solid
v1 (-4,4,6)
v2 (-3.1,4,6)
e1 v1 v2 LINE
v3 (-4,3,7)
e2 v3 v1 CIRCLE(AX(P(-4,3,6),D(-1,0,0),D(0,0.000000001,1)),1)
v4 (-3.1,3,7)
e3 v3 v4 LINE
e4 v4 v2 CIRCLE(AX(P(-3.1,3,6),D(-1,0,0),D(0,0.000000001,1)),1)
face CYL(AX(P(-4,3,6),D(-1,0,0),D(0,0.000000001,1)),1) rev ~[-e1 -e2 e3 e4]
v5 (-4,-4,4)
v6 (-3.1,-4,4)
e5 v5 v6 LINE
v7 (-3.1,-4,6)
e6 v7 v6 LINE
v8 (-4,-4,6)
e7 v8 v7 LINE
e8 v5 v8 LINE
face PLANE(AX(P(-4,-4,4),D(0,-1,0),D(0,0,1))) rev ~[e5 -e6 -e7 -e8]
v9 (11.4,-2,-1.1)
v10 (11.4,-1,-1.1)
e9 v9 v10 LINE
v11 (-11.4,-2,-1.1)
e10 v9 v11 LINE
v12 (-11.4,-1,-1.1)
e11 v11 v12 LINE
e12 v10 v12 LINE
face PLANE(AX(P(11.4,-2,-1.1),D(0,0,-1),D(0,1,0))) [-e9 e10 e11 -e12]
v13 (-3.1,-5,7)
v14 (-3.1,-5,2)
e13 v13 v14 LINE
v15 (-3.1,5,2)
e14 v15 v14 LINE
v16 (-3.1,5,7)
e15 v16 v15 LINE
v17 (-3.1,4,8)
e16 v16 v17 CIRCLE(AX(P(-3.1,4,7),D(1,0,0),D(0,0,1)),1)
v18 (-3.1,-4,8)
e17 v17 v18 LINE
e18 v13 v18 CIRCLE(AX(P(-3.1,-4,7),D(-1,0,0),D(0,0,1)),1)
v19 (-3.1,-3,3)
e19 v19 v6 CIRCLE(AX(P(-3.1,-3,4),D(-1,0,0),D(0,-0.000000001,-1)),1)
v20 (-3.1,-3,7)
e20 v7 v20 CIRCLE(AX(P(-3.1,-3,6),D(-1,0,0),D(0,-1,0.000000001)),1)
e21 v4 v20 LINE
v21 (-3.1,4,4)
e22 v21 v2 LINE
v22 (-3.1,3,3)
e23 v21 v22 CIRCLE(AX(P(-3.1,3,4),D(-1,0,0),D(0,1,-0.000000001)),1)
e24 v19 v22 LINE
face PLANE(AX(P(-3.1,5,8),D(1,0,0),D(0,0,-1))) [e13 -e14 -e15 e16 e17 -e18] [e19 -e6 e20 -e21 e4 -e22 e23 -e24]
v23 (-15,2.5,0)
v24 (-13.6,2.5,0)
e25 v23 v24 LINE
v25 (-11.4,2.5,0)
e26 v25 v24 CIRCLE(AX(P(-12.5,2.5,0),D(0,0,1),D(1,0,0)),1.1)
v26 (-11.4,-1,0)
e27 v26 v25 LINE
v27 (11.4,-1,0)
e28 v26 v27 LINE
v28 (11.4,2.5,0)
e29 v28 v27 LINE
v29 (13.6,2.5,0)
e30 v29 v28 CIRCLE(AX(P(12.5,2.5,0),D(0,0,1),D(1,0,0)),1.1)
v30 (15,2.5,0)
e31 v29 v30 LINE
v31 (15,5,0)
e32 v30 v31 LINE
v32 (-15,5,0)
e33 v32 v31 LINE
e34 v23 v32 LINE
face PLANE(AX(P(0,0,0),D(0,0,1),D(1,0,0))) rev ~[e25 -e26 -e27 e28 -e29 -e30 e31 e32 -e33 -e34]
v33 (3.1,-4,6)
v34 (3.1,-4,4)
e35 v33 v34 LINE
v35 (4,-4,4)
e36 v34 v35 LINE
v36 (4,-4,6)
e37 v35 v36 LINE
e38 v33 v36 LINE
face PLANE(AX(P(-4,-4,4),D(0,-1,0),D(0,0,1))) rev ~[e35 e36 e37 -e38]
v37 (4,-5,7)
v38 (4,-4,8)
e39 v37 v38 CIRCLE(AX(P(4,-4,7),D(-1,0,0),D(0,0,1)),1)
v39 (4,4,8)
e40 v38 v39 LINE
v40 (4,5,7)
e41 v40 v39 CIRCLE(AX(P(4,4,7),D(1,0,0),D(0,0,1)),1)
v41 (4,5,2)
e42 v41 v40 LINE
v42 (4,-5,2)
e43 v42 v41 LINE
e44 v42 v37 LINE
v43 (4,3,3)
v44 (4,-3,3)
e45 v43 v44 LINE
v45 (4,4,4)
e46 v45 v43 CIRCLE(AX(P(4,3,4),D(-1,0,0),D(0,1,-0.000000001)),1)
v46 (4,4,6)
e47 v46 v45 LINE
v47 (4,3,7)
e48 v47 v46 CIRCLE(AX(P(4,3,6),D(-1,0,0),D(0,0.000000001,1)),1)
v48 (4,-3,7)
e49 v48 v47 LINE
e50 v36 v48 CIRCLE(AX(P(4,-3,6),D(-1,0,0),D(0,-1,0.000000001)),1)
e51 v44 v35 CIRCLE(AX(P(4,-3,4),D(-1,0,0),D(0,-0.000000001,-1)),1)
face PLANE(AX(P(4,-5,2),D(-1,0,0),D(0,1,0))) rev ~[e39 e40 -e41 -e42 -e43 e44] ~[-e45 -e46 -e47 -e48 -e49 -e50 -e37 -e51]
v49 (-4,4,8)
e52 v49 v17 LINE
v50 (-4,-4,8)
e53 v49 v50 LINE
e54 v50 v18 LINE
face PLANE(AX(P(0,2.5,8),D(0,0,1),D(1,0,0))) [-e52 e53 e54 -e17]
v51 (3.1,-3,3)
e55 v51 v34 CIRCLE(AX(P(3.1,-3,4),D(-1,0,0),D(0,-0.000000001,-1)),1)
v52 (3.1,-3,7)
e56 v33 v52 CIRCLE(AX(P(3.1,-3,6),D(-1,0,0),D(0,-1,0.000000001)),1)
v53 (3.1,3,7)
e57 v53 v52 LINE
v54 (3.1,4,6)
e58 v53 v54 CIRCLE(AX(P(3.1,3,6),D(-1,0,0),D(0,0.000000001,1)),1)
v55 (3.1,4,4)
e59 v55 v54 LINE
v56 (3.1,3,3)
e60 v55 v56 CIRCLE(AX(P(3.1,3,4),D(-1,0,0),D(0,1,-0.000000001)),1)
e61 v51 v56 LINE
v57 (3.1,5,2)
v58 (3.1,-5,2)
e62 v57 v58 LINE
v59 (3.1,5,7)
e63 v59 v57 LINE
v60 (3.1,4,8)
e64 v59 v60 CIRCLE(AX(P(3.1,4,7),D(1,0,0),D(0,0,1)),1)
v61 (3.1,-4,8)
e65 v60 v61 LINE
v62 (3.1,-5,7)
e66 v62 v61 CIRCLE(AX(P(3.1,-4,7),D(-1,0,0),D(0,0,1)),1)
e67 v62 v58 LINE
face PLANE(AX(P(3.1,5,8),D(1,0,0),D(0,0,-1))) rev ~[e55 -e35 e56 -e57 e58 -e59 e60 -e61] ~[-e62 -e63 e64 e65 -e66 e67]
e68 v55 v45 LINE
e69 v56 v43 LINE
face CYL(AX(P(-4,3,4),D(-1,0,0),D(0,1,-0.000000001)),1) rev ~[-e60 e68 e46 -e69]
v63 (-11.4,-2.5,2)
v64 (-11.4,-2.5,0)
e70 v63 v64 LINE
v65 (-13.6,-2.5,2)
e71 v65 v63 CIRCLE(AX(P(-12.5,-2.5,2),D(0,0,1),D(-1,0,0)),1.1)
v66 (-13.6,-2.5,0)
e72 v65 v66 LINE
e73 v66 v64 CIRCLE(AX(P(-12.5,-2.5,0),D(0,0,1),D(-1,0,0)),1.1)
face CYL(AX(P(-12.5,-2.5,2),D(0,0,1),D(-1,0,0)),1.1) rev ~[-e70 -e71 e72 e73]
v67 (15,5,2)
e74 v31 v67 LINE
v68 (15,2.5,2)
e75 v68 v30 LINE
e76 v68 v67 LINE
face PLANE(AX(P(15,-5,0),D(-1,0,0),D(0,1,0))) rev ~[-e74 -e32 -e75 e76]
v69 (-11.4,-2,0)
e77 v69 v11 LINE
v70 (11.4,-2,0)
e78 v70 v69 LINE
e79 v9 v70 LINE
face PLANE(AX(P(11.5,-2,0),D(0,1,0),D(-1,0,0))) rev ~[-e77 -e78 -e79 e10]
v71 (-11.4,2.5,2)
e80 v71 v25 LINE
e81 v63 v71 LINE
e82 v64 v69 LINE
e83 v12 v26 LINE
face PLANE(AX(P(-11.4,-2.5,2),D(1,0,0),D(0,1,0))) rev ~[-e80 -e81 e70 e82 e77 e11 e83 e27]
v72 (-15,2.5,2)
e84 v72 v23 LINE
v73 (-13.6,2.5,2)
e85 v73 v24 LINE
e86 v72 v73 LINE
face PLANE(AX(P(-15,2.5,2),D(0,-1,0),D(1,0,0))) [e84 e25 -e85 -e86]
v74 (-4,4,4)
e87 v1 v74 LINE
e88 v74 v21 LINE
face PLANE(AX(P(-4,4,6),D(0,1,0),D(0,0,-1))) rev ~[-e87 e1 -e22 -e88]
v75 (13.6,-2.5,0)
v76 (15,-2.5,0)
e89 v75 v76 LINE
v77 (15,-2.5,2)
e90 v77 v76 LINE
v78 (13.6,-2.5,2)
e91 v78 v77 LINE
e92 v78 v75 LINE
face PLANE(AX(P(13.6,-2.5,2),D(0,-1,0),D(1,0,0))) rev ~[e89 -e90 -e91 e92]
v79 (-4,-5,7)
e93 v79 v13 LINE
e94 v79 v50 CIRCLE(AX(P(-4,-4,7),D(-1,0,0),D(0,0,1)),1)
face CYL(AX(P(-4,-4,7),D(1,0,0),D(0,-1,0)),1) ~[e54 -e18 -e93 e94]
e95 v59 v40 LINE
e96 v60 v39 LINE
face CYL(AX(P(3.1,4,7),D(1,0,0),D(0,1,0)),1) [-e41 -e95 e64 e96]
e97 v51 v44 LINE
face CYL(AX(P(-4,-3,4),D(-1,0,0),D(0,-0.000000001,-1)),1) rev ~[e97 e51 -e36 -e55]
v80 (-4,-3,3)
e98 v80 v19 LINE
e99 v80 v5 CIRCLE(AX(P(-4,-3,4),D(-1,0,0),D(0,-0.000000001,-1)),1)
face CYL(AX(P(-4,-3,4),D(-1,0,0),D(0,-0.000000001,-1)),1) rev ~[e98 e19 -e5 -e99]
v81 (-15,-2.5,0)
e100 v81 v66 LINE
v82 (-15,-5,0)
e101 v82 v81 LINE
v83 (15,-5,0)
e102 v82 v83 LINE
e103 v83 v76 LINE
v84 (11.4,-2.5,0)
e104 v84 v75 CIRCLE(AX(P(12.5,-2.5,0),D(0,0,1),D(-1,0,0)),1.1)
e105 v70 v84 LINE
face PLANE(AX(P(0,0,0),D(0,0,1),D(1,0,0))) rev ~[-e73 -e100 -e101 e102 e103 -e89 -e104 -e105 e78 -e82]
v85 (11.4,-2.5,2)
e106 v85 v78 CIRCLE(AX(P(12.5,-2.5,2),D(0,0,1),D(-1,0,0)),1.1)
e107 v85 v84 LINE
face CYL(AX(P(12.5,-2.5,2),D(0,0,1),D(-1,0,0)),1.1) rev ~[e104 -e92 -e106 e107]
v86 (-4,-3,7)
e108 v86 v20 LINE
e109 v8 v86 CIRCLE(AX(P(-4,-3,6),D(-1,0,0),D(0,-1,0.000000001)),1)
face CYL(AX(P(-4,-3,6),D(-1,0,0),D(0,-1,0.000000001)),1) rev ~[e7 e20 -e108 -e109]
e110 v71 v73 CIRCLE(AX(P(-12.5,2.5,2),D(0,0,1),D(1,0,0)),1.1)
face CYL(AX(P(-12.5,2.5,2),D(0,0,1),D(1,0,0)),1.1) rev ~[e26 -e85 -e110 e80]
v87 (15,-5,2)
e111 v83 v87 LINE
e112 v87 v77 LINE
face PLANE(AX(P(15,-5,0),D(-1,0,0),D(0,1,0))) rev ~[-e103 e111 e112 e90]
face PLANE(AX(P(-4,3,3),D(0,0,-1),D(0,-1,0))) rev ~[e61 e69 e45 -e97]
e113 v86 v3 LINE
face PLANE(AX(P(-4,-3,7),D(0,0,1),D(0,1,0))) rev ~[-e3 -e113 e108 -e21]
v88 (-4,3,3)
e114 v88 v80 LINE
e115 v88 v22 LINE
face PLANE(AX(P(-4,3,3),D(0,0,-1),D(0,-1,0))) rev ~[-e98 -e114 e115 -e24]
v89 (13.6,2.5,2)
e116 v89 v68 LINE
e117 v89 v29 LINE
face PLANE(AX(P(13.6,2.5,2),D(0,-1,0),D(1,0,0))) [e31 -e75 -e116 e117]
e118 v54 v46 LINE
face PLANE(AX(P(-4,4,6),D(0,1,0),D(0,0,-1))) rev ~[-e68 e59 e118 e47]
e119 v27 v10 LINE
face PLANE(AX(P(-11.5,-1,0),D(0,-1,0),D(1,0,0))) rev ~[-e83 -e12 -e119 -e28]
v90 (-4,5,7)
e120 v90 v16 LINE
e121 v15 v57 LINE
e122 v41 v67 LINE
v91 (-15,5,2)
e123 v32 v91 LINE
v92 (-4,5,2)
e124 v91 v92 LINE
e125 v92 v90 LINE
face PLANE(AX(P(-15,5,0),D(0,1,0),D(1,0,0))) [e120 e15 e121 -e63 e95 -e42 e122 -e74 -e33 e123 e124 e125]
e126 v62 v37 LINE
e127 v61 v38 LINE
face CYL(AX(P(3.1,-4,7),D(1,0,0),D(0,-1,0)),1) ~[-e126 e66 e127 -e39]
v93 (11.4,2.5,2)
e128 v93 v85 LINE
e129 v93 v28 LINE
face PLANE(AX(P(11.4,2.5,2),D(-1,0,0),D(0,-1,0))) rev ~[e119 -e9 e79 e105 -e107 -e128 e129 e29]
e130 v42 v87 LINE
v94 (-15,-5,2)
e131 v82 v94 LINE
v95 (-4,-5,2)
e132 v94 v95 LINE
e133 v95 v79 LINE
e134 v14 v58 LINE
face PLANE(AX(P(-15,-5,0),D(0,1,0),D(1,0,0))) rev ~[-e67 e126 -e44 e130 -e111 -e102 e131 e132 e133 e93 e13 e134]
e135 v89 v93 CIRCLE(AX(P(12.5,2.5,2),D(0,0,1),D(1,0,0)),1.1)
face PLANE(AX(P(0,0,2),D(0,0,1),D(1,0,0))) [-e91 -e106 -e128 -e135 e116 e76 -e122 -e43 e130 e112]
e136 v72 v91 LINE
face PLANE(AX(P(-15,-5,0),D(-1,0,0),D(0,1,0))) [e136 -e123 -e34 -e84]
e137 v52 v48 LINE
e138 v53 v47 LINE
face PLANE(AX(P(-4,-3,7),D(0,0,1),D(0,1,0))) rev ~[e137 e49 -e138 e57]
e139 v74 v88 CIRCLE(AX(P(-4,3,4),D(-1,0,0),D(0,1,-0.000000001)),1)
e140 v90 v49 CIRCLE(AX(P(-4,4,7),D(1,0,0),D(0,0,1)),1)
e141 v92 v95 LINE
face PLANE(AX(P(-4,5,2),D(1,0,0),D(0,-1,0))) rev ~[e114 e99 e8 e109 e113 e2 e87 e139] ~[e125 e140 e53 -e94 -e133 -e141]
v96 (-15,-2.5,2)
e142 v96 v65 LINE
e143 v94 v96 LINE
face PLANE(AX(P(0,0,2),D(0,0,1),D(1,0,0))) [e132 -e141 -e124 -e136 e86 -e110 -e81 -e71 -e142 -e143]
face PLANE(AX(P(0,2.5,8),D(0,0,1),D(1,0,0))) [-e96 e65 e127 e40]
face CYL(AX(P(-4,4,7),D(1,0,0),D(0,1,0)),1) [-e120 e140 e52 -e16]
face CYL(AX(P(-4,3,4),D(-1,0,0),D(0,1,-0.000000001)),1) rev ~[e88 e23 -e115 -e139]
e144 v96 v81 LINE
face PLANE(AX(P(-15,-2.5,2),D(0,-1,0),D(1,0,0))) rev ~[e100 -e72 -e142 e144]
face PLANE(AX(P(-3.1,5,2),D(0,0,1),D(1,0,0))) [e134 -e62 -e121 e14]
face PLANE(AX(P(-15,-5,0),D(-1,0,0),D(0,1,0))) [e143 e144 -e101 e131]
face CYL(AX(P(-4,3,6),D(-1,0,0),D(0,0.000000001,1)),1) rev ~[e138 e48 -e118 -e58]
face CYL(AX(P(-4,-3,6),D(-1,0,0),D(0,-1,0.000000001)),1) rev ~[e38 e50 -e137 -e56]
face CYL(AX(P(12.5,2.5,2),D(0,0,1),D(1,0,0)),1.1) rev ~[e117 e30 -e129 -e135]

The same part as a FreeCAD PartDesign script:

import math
import FreeCAD as App
import Part
import Sketcher

V = App.Vector
Q = App.Units.Quantity


def edges_at(feature, points):
    """Names of the edges that pass closest to the given points."""
    edges = feature.Shape.Edges
    near = lambda p: min(range(len(edges)), key=lambda i: edges[i].distToShape(Part.Vertex(*p))[0])
    return sorted({f"Edge{near(p) + 1}" for p in points})


def add_polygon(sketch, points):
    """Adds a closed chain of lines whose ends are joined by coincident constraints."""
    first, n = sketch.GeometryCount, len(points)
    for a, b in zip(points, points[1:] + points[:1]):
        sketch.addGeometry(Part.LineSegment(App.Vector(*a, 0), App.Vector(*b, 0)), False)
    for i in range(n):
        sketch.addConstraint(Sketcher.Constraint("Coincident", first + i, 2, first + (i + 1) % n, 1))

doc = App.newDocument("Part")
body = doc.addObject("PartDesign::Body", "Body")

sketch1 = body.newObject("Sketcher::SketchObject", "Sketch")
sketch1.AttachmentSupport = (doc.getObject("XY_Plane"), [""])
sketch1.MapMode = "FlatFace"
add_polygon(sketch1, [(-15, 5), (-15, -5), (15, -5), (15, 5)])
sketch1.addConstraint([
    Sketcher.Constraint("Vertical", 0),
    Sketcher.Constraint("Horizontal", 1),
    Sketcher.Constraint("Vertical", 2),
    Sketcher.Constraint("Horizontal", 3),
    Sketcher.Constraint("Symmetric", 0, 2, 2, 2, -1, 1),
    Sketcher.Constraint("DistanceX", 1, 1, 1, 2, Q("30 mm")),
    Sketcher.Constraint("DistanceY", 0, 2, 0, 1, Q("10 mm")),
])
pad1 = body.newObject("PartDesign::Pad", "Pad")
pad1.Profile = sketch1
pad1.Length = 2

sketch2 = body.newObject("Sketcher::SketchObject", "Sketch001")
sketch2.AttachmentSupport = (doc.getObject("XY_Plane"), [""])
sketch2.MapMode = "FlatFace"
sketch2.AttachmentOffset = App.Placement(V(0, 0, 2), App.Rotation())
sketch2.addGeometry([
    Part.LineSegment(V(-13.5, 2.5, 0), V(-13.5, -2.5, 0)),
    Part.ArcOfCircle(Part.Circle(V(-12.5, -2.5, 0), V(0, 0, 1), 1), math.radians(180), math.radians(360)),
    Part.LineSegment(V(-11.5, -2.5, 0), V(-11.5, 2.5, 0)),
    Part.ArcOfCircle(Part.Circle(V(-12.5, 2.5, 0), V(0, 0, 1), 1), math.radians(0), math.radians(180)),
    Part.LineSegment(V(11.5, 2.5, 0), V(11.5, -2.5, 0)),
    Part.ArcOfCircle(Part.Circle(V(12.5, -2.5, 0), V(0, 0, 1), 1), math.radians(180), math.radians(360)),
    Part.LineSegment(V(13.5, -2.5, 0), V(13.5, 2.5, 0)),
    Part.ArcOfCircle(Part.Circle(V(12.5, 2.5, 0), V(0, 0, 1), 1), math.radians(0), math.radians(180)),
], False)
sketch2.addConstraint([
    Sketcher.Constraint("Tangent", 0, 2, 1, 1),
    Sketcher.Constraint("Tangent", 1, 2, 2, 1),
    Sketcher.Constraint("Tangent", 2, 2, 3, 1),
    Sketcher.Constraint("Tangent", 3, 2, 0, 1),
    Sketcher.Constraint("Tangent", 4, 2, 5, 1),
    Sketcher.Constraint("Tangent", 5, 2, 6, 1),
    Sketcher.Constraint("Tangent", 6, 2, 7, 1),
    Sketcher.Constraint("Tangent", 7, 2, 4, 1),
    Sketcher.Constraint("Vertical", 0),
    Sketcher.Constraint("Vertical", 2),
    Sketcher.Constraint("Vertical", 4),
    Sketcher.Constraint("Vertical", 6),
    Sketcher.Constraint("Equal", 3, 5),
    Sketcher.Constraint("Symmetric", 3, 3, 5, 3, -1, 1),
    Sketcher.Constraint("Horizontal", 1, 3, 5, 3),
    Sketcher.Constraint("Horizontal", 3, 3, 7, 3),
    Sketcher.Constraint("Radius", 1, Q("1 mm")),
    Sketcher.Constraint("DistanceY", 0, 2, 0, 1, Q("5 mm")),
    Sketcher.Constraint("DistanceX", 1, 3, 5, 3, Q("25 mm")),
])
pocket1 = body.newObject("PartDesign::Pocket", "Pocket")
pocket1.Profile = sketch2
pocket1.Length = 11

sketch3 = body.newObject("Sketcher::SketchObject", "Sketch002")
sketch3.AttachmentSupport = (doc.getObject("XY_Plane"), [""])
sketch3.MapMode = "FlatFace"
add_polygon(sketch3, [(-11.5, -2), (-11.5, -1), (11.5, -1), (11.5, -2)])
sketch3.addConstraint([
    Sketcher.Constraint("Vertical", 0),
    Sketcher.Constraint("Horizontal", 1),
    Sketcher.Constraint("Vertical", 2),
    Sketcher.Constraint("Horizontal", 3),
    Sketcher.Constraint("DistanceX", 1, 1, 1, 2, Q("23 mm")),
    Sketcher.Constraint("DistanceY", 0, 1, 0, 2, Q("1 mm")),
    Sketcher.Constraint("DistanceY", 0, 2, -1, 1, Q("1 mm")),
    Sketcher.Constraint("DistanceX", 0, 2, -1, 1, Q("11.5 mm")),
])
pad2 = body.newObject("PartDesign::Pad", "Pad001")
pad2.Profile = sketch3
pad2.Length = 1.5
pad2.Reversed = True

sketch4 = body.newObject("Sketcher::SketchObject", "Sketch003")
sketch4.AttachmentSupport = (doc.getObject("XY_Plane"), [""])
sketch4.MapMode = "FlatFace"
sketch4.AttachmentOffset = App.Placement(V(0, 0, 2), App.Rotation())
sketch4.addGeometry([
    Part.LineSegment(V(-13.6, 2.5, 0), V(-13.6, -2.5, 0)),
    Part.ArcOfCircle(Part.Circle(V(-12.5, -2.5, 0), V(0, 0, 1), 1.1), math.radians(180), math.radians(360)),
    Part.LineSegment(V(-11.4, -2.5, 0), V(-11.4, 2.5, 0)),
    Part.ArcOfCircle(Part.Circle(V(-12.5, 2.5, 0), V(0, 0, 1), 1.1), math.radians(0), math.radians(180)),
    Part.LineSegment(V(11.4, 2.5, 0), V(11.4, -2.5, 0)),
    Part.ArcOfCircle(Part.Circle(V(12.5, -2.5, 0), V(0, 0, 1), 1.1), math.radians(180), math.radians(360)),
    Part.LineSegment(V(13.6, -2.5, 0), V(13.6, 2.5, 0)),
    Part.ArcOfCircle(Part.Circle(V(12.5, 2.5, 0), V(0, 0, 1), 1.1), math.radians(0), math.radians(180)),
], False)
sketch4.addConstraint([
    Sketcher.Constraint("Tangent", 0, 2, 1, 1),
    Sketcher.Constraint("Tangent", 1, 2, 2, 1),
    Sketcher.Constraint("Tangent", 2, 2, 3, 1),
    Sketcher.Constraint("Tangent", 3, 2, 0, 1),
    Sketcher.Constraint("Tangent", 4, 2, 5, 1),
    Sketcher.Constraint("Tangent", 5, 2, 6, 1),
    Sketcher.Constraint("Tangent", 6, 2, 7, 1),
    Sketcher.Constraint("Tangent", 7, 2, 4, 1),
    Sketcher.Constraint("Vertical", 0),
    Sketcher.Constraint("Vertical", 2),
    Sketcher.Constraint("Vertical", 4),
    Sketcher.Constraint("Vertical", 6),
    Sketcher.Constraint("Equal", 3, 5),
    Sketcher.Constraint("Symmetric", 3, 3, 5, 3, -1, 1),
    Sketcher.Constraint("Horizontal", 1, 3, 5, 3),
    Sketcher.Constraint("Horizontal", 3, 3, 7, 3),
    Sketcher.Constraint("Radius", 1, Q("1.1 mm")),
    Sketcher.Constraint("DistanceY", 0, 2, 0, 1, Q("5 mm")),
    Sketcher.Constraint("DistanceX", 1, 3, 5, 3, Q("25 mm")),
])
pocket2 = body.newObject("PartDesign::Pocket", "Pocket001")
pocket2.Profile = sketch4
pocket2.Length = 11.5

sketch5 = body.newObject("Sketcher::SketchObject", "Sketch004")
sketch5.AttachmentSupport = (doc.getObject("XY_Plane"), [""])
sketch5.MapMode = "FlatFace"
sketch5.AttachmentOffset = App.Placement(V(0, 0, 2), App.Rotation())
add_polygon(sketch5, [(-15, 2.5), (-15, -2.5), (-13.6, -2.5), (-13.6, 2.5)])
add_polygon(sketch5, [(13.6, 2.5), (13.6, -2.5), (15, -2.5), (15, 2.5)])
sketch5.addConstraint([
    Sketcher.Constraint("Vertical", 0),
    Sketcher.Constraint("Horizontal", 1),
    Sketcher.Constraint("Vertical", 2),
    Sketcher.Constraint("Horizontal", 3),
    Sketcher.Constraint("Vertical", 4),
    Sketcher.Constraint("Horizontal", 5),
    Sketcher.Constraint("Vertical", 6),
    Sketcher.Constraint("Horizontal", 7),
    Sketcher.Constraint("Symmetric", 2, 2, 4, 2, -1, 1),
    Sketcher.Constraint("Symmetric", 0, 2, 6, 2, -1, 1),
    Sketcher.Constraint("Horizontal", 1, 2, 4, 2),
    Sketcher.Constraint("DistanceY", 0, 2, 0, 1, Q("5 mm")),
    Sketcher.Constraint("DistanceX", 1, 1, 1, 2, Q("1.4 mm")),
    Sketcher.Constraint("DistanceX", 0, 2, -1, 1, Q("15 mm")),
])
pocket3 = body.newObject("PartDesign::Pocket", "Pocket002")
pocket3.Profile = sketch5
pocket3.Length = 10

sketch6 = body.newObject("Sketcher::SketchObject", "Sketch005")
sketch6.AttachmentSupport = (doc.getObject("XY_Plane"), [""])
sketch6.MapMode = "FlatFace"
sketch6.AttachmentOffset = App.Placement(V(0, 0, 2), App.Rotation())
add_polygon(sketch6, [(-4, 5), (-4, -5), (4, -5), (4, 5)])
sketch6.addConstraint([
    Sketcher.Constraint("Vertical", 0),
    Sketcher.Constraint("Horizontal", 1),
    Sketcher.Constraint("Vertical", 2),
    Sketcher.Constraint("Horizontal", 3),
    Sketcher.Constraint("Symmetric", 0, 2, 2, 2, -1, 1),
    Sketcher.Constraint("DistanceX", 1, 1, 1, 2, Q("8 mm")),
    Sketcher.Constraint("DistanceY", 0, 2, 0, 1, Q("10 mm")),
])
pad3 = body.newObject("PartDesign::Pad", "Pad002")
pad3.Profile = sketch6
pad3.Length = 6

sketch7 = body.newObject("Sketcher::SketchObject", "Sketch006")
sketch7.AttachmentSupport = (doc.getObject("XZ_Plane"), [""])
sketch7.MapMode = "FlatFace"
sketch7.AttachmentOffset = App.Placement(V(0, 0, -5), App.Rotation())
add_polygon(sketch7, [(-3, 2), (-3, 8), (3, 8), (3, 2)])
sketch7.addConstraint([
    Sketcher.Constraint("Vertical", 0),
    Sketcher.Constraint("Horizontal", 1),
    Sketcher.Constraint("Vertical", 2),
    Sketcher.Constraint("Horizontal", 3),
    Sketcher.Constraint("DistanceY", 0, 1, 0, 2, Q("6 mm")),
    Sketcher.Constraint("DistanceX", 1, 1, 1, 2, Q("6.2 mm")),
    Sketcher.Constraint("DistanceY", -1, 1, 0, 2, Q("8 mm")),
    Sketcher.Constraint("DistanceX", 0, 2, -1, 1, Q("3.1 mm")),
])
pocket4 = body.newObject("PartDesign::Pocket", "Pocket003")
pocket4.Profile = sketch7
pocket4.Length = 11
pocket4.Reversed = True

sketch8 = body.newObject("Sketcher::SketchObject", "Sketch007")
sketch8.AttachmentSupport = (doc.getObject("YZ_Plane"), [""])
sketch8.MapMode = "FlatFace"
sketch8.AttachmentOffset = App.Placement(V(0, 0, -4), App.Rotation())
sketch8.addGeometry([
    Part.ArcOfCircle(Part.Circle(V(3, 4, 0), V(0, 0, 1), 1), math.radians(-90), math.radians(0)),
    Part.LineSegment(V(3, 3, 0), V(-3, 3, 0)),
    Part.ArcOfCircle(Part.Circle(V(-3, 4, 0), V(0, 0, 1), 1), math.radians(-180), math.radians(-90)),
    Part.LineSegment(V(-4, 4, 0), V(-4, 6, 0)),
    Part.ArcOfCircle(Part.Circle(V(-3, 6, 0), V(0, 0, 1), 1), math.radians(90), math.radians(180)),
    Part.LineSegment(V(-3, 7, 0), V(3, 7, 0)),
    Part.ArcOfCircle(Part.Circle(V(3, 6, 0), V(0, 0, 1), 1), math.radians(0), math.radians(90)),
    Part.LineSegment(V(4, 6, 0), V(4, 4, 0)),
], False)
sketch8.addConstraint([
    Sketcher.Constraint("Tangent", 0, 1, 1, 1),
    Sketcher.Constraint("Tangent", 1, 2, 2, 2),
    Sketcher.Constraint("Tangent", 2, 1, 3, 1),
    Sketcher.Constraint("Tangent", 3, 2, 4, 2),
    Sketcher.Constraint("Tangent", 4, 1, 5, 1),
    Sketcher.Constraint("Tangent", 5, 2, 6, 2),
    Sketcher.Constraint("Tangent", 6, 1, 7, 1),
    Sketcher.Constraint("Tangent", 7, 2, 0, 2),
    Sketcher.Constraint("Horizontal", 1),
    Sketcher.Constraint("Vertical", 3),
    Sketcher.Constraint("Horizontal", 5),
    Sketcher.Constraint("Vertical", 7),
    Sketcher.Constraint("Equal", 0, 2),
    Sketcher.Constraint("Equal", 2, 4),
    Sketcher.Constraint("Equal", 4, 6),
    Sketcher.Constraint("Radius", 0, Q("1 mm")),
    Sketcher.Constraint("DistanceX", 1, 2, 1, 1, Q("6 mm")),
    Sketcher.Constraint("DistanceY", 3, 1, 3, 2, Q("2 mm")),
    Sketcher.Constraint("DistanceX", -1, 1, 0, 3, Q("3 mm")),
    Sketcher.Constraint("DistanceY", -1, 1, 0, 3, Q("4 mm")),
])
pocket5 = body.newObject("PartDesign::Pocket", "Pocket004")
pocket5.Profile = sketch8
pocket5.Length = 11
pocket5.Reversed = True
doc.recompute()

fillet = body.newObject("PartDesign::Fillet", "Fillet")
fillet.Base = (pocket5, edges_at(pocket5, [
    (3.55, 5, 8),
    (-3.55, -5, 8),
    (-3.55, 5, 8),
    (3.55, -5, 8),
]))
fillet.Radius = 1

sketch9 = body.newObject("Sketcher::SketchObject", "Sketch008")
sketch9.AttachmentSupport = (doc.getObject("YZ_Plane"), [""])
sketch9.MapMode = "FlatFace"
sketch9.AttachmentOffset = App.Placement(V(0, 0, 11.4), App.Rotation())
add_polygon(sketch9, [(-1, -1.1), (-2, -1.1), (-2, -1.5), (-1, -1.5)])
sketch9.addConstraint([
    Sketcher.Constraint("Horizontal", 0),
    Sketcher.Constraint("Vertical", 1),
    Sketcher.Constraint("Horizontal", 2),
    Sketcher.Constraint("Vertical", 3),
    Sketcher.Constraint("DistanceX", 0, 2, 0, 1, Q("1 mm")),
    Sketcher.Constraint("DistanceY", 1, 2, 1, 1, Q("0.4 mm")),
    Sketcher.Constraint("DistanceX", 0, 2, -1, 1, Q("2 mm")),
    Sketcher.Constraint("DistanceY", 0, 2, -1, 1, Q("1.1 mm")),
])
pocket6 = body.newObject("PartDesign::Pocket", "Pocket005")
pocket6.Profile = sketch9
pocket6.Length = 23

doc.recompute()
